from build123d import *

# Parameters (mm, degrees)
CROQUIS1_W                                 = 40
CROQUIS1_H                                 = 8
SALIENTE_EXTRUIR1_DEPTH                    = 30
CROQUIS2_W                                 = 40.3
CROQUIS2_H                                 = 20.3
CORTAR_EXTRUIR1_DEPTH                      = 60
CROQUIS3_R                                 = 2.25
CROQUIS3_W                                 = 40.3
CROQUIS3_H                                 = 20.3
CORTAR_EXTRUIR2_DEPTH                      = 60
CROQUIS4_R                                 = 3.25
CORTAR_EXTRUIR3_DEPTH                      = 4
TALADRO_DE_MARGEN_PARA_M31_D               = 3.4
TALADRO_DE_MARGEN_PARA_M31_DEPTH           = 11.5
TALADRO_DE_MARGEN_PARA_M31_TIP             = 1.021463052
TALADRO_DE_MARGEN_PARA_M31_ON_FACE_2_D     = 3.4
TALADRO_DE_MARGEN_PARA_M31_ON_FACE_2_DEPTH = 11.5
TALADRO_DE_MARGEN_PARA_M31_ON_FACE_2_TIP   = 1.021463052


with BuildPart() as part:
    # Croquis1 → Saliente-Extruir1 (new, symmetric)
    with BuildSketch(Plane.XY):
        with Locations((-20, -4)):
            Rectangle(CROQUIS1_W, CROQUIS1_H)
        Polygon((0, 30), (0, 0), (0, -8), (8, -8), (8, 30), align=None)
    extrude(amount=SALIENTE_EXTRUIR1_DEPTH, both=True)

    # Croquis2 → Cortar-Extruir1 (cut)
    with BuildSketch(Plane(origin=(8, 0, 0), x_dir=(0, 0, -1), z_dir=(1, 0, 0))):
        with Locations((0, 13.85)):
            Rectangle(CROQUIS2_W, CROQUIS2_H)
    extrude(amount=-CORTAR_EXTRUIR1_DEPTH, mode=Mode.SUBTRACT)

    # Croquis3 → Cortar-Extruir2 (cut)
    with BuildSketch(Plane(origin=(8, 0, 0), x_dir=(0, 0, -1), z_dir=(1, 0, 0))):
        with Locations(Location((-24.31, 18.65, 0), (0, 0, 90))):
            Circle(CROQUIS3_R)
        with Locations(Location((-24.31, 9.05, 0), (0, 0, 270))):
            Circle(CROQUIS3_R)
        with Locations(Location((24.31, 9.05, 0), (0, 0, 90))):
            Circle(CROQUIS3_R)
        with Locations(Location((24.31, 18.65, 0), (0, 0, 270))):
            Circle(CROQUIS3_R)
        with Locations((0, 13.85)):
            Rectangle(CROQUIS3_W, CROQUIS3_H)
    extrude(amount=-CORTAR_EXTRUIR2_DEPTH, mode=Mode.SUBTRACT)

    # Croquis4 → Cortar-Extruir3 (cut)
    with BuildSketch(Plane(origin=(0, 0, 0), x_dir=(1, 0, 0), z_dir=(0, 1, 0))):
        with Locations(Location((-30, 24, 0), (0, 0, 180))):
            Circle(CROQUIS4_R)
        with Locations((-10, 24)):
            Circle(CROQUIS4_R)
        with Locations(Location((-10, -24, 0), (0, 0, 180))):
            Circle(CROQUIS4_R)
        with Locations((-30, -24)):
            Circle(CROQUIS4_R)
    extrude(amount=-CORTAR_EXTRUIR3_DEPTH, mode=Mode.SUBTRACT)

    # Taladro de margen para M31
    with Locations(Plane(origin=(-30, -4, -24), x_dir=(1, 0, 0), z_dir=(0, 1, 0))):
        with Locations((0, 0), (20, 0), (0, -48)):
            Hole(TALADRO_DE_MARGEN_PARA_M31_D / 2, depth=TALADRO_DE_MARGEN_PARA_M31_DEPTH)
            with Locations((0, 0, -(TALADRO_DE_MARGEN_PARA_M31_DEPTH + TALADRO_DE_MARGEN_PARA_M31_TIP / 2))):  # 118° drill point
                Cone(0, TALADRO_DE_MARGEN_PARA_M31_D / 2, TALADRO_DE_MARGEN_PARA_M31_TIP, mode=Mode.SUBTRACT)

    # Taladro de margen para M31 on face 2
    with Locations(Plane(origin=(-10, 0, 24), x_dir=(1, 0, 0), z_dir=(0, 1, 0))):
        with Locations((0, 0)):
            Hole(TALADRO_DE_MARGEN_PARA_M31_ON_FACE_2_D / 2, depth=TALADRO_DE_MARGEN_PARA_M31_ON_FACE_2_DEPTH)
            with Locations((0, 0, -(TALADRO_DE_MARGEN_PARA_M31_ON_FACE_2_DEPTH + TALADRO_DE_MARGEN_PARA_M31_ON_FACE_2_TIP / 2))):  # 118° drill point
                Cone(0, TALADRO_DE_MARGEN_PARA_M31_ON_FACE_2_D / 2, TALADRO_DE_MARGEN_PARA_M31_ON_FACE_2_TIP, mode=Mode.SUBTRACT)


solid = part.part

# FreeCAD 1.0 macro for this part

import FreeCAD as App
import Part
import Sketcher


def add_polygon(sketch, points):
    """Adds a closed chain of lines whose ends are joined by coincident constraints."""
    first, n = sketch.GeometryCount, len(points)
    for a, b in zip(points, points[1:] + points[:1]):
        sketch.addGeometry(Part.LineSegment(App.Vector(*a, 0), App.Vector(*b, 0)), False)
    for i in range(n):
        sketch.addConstraint(Sketcher.Constraint("Coincident", first + i, 2, first + (i + 1) % n, 1))

doc = App.newDocument("Part")
body = doc.addObject("PartDesign::Body", "Body")

sketch1 = doc.addObject("Sketcher::SketchObject", "Sketch")
body.addObject(sketch1)
sketch1.AttachmentSupport = (doc.XY_Plane, [""])
sketch1.MapMode = "FlatFace"
add_polygon(sketch1, [(-40, 0), (-40, -8), (8, -8), (8, 30), (0, 30), (0, 0)])
sketch1.addConstraint([
    Sketcher.Constraint("Vertical", 0),
    Sketcher.Constraint("Horizontal", 1),
    Sketcher.Constraint("Vertical", 2),
    Sketcher.Constraint("Horizontal", 3),
    Sketcher.Constraint("Vertical", 4),
    Sketcher.Constraint("Horizontal", 5),
    Sketcher.Constraint("Coincident", 4, 2, -1, 1),
    Sketcher.Constraint("Equal", 3, 0),
    Sketcher.Constraint("DistanceX", 1, 1, 1, 2, 48.0),
    Sketcher.Constraint("DistanceX", 3, 2, 3, 1, 8.0),
    Sketcher.Constraint("DistanceY", 2, 1, 2, 2, 38.0),
])
pad1 = doc.addObject("PartDesign::Pad", "Pad")
body.addObject(pad1)
pad1.Profile = sketch1
pad1.Length = 60
pad1.Midplane = True

sketch2 = doc.addObject("Sketcher::SketchObject", "Sketch001")
body.addObject(sketch2)
sketch2.AttachmentSupport = (doc.YZ_Plane, [""])
sketch2.MapMode = "FlatFace"
sketch2.AttachmentOffset = App.Placement(App.Vector(0, 0, 8), App.Rotation())
add_polygon(sketch2, [(24, 20), (4, 20), (4, -20), (24, -20)])
sketch2.addConstraint([
    Sketcher.Constraint("Horizontal", 0),
    Sketcher.Constraint("Vertical", 1),
    Sketcher.Constraint("Horizontal", 2),
    Sketcher.Constraint("Vertical", 3),
    Sketcher.Constraint("DistanceX", 0, 2, 0, 1, 20.3),
    Sketcher.Constraint("DistanceY", 1, 2, 1, 1, 40.3),
    Sketcher.Constraint("DistanceX", -1, 1, 2, 2, 24.0),
    Sketcher.Constraint("DistanceY", -1, 1, 0, 2, 20.15),
])
pocket1 = doc.addObject("PartDesign::Pocket", "Pocket")
body.addObject(pocket1)
pocket1.Profile = sketch2
pocket1.Length = 60

sketch3 = doc.addObject("Sketcher::SketchObject", "Sketch002")
body.addObject(sketch3)
sketch3.AttachmentSupport = (doc.YZ_Plane, [""])
sketch3.MapMode = "FlatFace"
sketch3.AttachmentOffset = App.Placement(App.Vector(0, 0, 8), App.Rotation())
sketch3.addGeometry(Part.Circle(App.Vector(18.6, 24.3, 0), App.Vector(0, 0, 1), 2.2), False)
sketch3.addGeometry(Part.Circle(App.Vector(9.1, 24.3, 0), App.Vector(0, 0, 1), 2.2), False)
sketch3.addGeometry(Part.Circle(App.Vector(9.1, -24.3, 0), App.Vector(0, 0, 1), 2.2), False)
sketch3.addGeometry(Part.Circle(App.Vector(18.6, -24.3, 0), App.Vector(0, 0, 1), 2.2), False)
add_polygon(sketch3, [(24, 20.1), (3.7, 20.1), (3.7, -20.1), (24, -20.1)])
sketch3.addConstraint([
    Sketcher.Constraint("Horizontal", 4),
    Sketcher.Constraint("Vertical", 5),
    Sketcher.Constraint("Horizontal", 6),
    Sketcher.Constraint("Vertical", 7),
    Sketcher.Constraint("Equal", 0, 1),
    Sketcher.Constraint("Equal", 1, 2),
    Sketcher.Constraint("Equal", 2, 3),
    Sketcher.Constraint("Symmetric", 1, 3, 2, 3, -1),
    Sketcher.Constraint("Symmetric", 0, 3, 3, 3, -1),
    Sketcher.Constraint("Horizontal", 0, 3, 1, 3),
    Sketcher.Constraint("Diameter", 0, 4.5),
    Sketcher.Constraint("DistanceX", 4, 2, 4, 1, 20.3),
    Sketcher.Constraint("DistanceY", 5, 2, 5, 1, 40.3),
    Sketcher.Constraint("DistanceX", -1, 1, 6, 2, 24.0),
    Sketcher.Constraint("DistanceX", 1, 3, 0, 3, 9.6),
    Sketcher.Constraint("DistanceX", -1, 1, 0, 3, 18.65),
    Sketcher.Constraint("DistanceY", -1, 1, 0, 3, 24.31),
    Sketcher.Constraint("DistanceY", -1, 1, 4, 2, 20.15),
])
pocket2 = doc.addObject("PartDesign::Pocket", "Pocket001")
body.addObject(pocket2)
pocket2.Profile = sketch3
pocket2.Length = 60

sketch4 = doc.addObject("Sketcher::SketchObject", "Sketch003")
body.addObject(sketch4)
sketch4.AttachmentSupport = (doc.XZ_Plane, [""])
sketch4.MapMode = "FlatFace"
sketch4.addGeometry([
    Part.Circle(App.Vector(-30, -24, 0), App.Vector(0, 0, 1), 3.2),
    Part.Circle(App.Vector(-10, -24, 0), App.Vector(0, 0, 1), 3.2),
    Part.Circle(App.Vector(-10, 24, 0), App.Vector(0, 0, 1), 3.2),
    Part.Circle(App.Vector(-30, 24, 0), App.Vector(0, 0, 1), 3.2),
], False)
sketch4.addConstraint([
    Sketcher.Constraint("Equal", 0, 1),
    Sketcher.Constraint("Equal", 1, 2),
    Sketcher.Constraint("Equal", 2, 3),
    Sketcher.Constraint("Symmetric", 1, 3, 2, 3, -1),
    Sketcher.Constraint("Symmetric", 0, 3, 3, 3, -1),
    Sketcher.Constraint("Horizontal", 0, 3, 1, 3),
    Sketcher.Constraint("Diameter", 0, 6.5),
    Sketcher.Constraint("DistanceX", 0, 3, -1, 1, 30.0),
    Sketcher.Constraint("DistanceY", 0, 3, -1, 1, 24.0),
    Sketcher.Constraint("DistanceX", 1, 3, -1, 1, 10.0),
])
pocket3 = doc.addObject("PartDesign::Pocket", "Pocket002")
body.addObject(pocket3)
pocket3.Profile = sketch4
pocket3.Length = 4
pocket3.Reversed = True

sketch5 = doc.addObject("Sketcher::SketchObject", "Sketch004")
body.addObject(sketch5)
sketch5.AttachmentSupport = (doc.XZ_Plane, [""])
sketch5.MapMode = "FlatFace"
sketch5.AttachmentOffset = App.Placement(App.Vector(0, 0, 4), App.Rotation())
sketch5.addGeometry([
    Part.Circle(App.Vector(-30, -24, 0), App.Vector(0, 0, 1), 1.7),
    Part.Circle(App.Vector(-10, -24, 0), App.Vector(0, 0, 1), 1.7),
    Part.Circle(App.Vector(-30, 24, 0), App.Vector(0, 0, 1), 1.7),
], False)
sketch5.addConstraint([
    Sketcher.Constraint("Equal", 0, 1),
    Sketcher.Constraint("Equal", 1, 2),
    Sketcher.Constraint("Symmetric", 0, 3, 2, 3, -1),
    Sketcher.Constraint("Horizontal", 0, 3, 1, 3),
    Sketcher.Constraint("Diameter", 0, 3.4),
    Sketcher.Constraint("DistanceX", 0, 3, -1, 1, 30.0),
    Sketcher.Constraint("DistanceY", 0, 3, -1, 1, 24.0),
    Sketcher.Constraint("DistanceX", 1, 3, -1, 1, 10.0),
])
doc.recompute()
hole = doc.addObject("PartDesign::Hole", "Hole")
body.addObject(hole)
hole.Profile = sketch5
hole.ThreadType = "None"
hole.Diameter = 3.4
hole.DepthType = "Dimension"
hole.Depth = 11.5
hole.DrillPoint = "Angled"
hole.DrillPointAngle = 118
hole.Reversed = True

sketch6 = doc.addObject("Sketcher::SketchObject", "Sketch005")
body.addObject(sketch6)
sketch6.AttachmentSupport = (doc.XZ_Plane, [""])
sketch6.MapMode = "FlatFace"
sketch6.addGeometry(Part.Circle(App.Vector(-10, 24, 0), App.Vector(0, 0, 1), 1.7), False)
sketch6.addConstraint([
    Sketcher.Constraint("Diameter", 0, 3.4),
    Sketcher.Constraint("DistanceX", 0, 3, -1, 1, 10.0),
    Sketcher.Constraint("DistanceY", -1, 1, 0, 3, 24.0),
])
doc.recompute()
hole2 = doc.addObject("PartDesign::Hole", "Hole001")
body.addObject(hole2)
hole2.Profile = sketch6
hole2.ThreadType = "None"
hole2.Diameter = 3.4
hole2.DepthType = "Dimension"
hole2.Depth = 11.5
hole2.DrillPoint = "Angled"
hole2.DrillPointAngle = 118
hole2.Reversed = True

doc.recompute()
